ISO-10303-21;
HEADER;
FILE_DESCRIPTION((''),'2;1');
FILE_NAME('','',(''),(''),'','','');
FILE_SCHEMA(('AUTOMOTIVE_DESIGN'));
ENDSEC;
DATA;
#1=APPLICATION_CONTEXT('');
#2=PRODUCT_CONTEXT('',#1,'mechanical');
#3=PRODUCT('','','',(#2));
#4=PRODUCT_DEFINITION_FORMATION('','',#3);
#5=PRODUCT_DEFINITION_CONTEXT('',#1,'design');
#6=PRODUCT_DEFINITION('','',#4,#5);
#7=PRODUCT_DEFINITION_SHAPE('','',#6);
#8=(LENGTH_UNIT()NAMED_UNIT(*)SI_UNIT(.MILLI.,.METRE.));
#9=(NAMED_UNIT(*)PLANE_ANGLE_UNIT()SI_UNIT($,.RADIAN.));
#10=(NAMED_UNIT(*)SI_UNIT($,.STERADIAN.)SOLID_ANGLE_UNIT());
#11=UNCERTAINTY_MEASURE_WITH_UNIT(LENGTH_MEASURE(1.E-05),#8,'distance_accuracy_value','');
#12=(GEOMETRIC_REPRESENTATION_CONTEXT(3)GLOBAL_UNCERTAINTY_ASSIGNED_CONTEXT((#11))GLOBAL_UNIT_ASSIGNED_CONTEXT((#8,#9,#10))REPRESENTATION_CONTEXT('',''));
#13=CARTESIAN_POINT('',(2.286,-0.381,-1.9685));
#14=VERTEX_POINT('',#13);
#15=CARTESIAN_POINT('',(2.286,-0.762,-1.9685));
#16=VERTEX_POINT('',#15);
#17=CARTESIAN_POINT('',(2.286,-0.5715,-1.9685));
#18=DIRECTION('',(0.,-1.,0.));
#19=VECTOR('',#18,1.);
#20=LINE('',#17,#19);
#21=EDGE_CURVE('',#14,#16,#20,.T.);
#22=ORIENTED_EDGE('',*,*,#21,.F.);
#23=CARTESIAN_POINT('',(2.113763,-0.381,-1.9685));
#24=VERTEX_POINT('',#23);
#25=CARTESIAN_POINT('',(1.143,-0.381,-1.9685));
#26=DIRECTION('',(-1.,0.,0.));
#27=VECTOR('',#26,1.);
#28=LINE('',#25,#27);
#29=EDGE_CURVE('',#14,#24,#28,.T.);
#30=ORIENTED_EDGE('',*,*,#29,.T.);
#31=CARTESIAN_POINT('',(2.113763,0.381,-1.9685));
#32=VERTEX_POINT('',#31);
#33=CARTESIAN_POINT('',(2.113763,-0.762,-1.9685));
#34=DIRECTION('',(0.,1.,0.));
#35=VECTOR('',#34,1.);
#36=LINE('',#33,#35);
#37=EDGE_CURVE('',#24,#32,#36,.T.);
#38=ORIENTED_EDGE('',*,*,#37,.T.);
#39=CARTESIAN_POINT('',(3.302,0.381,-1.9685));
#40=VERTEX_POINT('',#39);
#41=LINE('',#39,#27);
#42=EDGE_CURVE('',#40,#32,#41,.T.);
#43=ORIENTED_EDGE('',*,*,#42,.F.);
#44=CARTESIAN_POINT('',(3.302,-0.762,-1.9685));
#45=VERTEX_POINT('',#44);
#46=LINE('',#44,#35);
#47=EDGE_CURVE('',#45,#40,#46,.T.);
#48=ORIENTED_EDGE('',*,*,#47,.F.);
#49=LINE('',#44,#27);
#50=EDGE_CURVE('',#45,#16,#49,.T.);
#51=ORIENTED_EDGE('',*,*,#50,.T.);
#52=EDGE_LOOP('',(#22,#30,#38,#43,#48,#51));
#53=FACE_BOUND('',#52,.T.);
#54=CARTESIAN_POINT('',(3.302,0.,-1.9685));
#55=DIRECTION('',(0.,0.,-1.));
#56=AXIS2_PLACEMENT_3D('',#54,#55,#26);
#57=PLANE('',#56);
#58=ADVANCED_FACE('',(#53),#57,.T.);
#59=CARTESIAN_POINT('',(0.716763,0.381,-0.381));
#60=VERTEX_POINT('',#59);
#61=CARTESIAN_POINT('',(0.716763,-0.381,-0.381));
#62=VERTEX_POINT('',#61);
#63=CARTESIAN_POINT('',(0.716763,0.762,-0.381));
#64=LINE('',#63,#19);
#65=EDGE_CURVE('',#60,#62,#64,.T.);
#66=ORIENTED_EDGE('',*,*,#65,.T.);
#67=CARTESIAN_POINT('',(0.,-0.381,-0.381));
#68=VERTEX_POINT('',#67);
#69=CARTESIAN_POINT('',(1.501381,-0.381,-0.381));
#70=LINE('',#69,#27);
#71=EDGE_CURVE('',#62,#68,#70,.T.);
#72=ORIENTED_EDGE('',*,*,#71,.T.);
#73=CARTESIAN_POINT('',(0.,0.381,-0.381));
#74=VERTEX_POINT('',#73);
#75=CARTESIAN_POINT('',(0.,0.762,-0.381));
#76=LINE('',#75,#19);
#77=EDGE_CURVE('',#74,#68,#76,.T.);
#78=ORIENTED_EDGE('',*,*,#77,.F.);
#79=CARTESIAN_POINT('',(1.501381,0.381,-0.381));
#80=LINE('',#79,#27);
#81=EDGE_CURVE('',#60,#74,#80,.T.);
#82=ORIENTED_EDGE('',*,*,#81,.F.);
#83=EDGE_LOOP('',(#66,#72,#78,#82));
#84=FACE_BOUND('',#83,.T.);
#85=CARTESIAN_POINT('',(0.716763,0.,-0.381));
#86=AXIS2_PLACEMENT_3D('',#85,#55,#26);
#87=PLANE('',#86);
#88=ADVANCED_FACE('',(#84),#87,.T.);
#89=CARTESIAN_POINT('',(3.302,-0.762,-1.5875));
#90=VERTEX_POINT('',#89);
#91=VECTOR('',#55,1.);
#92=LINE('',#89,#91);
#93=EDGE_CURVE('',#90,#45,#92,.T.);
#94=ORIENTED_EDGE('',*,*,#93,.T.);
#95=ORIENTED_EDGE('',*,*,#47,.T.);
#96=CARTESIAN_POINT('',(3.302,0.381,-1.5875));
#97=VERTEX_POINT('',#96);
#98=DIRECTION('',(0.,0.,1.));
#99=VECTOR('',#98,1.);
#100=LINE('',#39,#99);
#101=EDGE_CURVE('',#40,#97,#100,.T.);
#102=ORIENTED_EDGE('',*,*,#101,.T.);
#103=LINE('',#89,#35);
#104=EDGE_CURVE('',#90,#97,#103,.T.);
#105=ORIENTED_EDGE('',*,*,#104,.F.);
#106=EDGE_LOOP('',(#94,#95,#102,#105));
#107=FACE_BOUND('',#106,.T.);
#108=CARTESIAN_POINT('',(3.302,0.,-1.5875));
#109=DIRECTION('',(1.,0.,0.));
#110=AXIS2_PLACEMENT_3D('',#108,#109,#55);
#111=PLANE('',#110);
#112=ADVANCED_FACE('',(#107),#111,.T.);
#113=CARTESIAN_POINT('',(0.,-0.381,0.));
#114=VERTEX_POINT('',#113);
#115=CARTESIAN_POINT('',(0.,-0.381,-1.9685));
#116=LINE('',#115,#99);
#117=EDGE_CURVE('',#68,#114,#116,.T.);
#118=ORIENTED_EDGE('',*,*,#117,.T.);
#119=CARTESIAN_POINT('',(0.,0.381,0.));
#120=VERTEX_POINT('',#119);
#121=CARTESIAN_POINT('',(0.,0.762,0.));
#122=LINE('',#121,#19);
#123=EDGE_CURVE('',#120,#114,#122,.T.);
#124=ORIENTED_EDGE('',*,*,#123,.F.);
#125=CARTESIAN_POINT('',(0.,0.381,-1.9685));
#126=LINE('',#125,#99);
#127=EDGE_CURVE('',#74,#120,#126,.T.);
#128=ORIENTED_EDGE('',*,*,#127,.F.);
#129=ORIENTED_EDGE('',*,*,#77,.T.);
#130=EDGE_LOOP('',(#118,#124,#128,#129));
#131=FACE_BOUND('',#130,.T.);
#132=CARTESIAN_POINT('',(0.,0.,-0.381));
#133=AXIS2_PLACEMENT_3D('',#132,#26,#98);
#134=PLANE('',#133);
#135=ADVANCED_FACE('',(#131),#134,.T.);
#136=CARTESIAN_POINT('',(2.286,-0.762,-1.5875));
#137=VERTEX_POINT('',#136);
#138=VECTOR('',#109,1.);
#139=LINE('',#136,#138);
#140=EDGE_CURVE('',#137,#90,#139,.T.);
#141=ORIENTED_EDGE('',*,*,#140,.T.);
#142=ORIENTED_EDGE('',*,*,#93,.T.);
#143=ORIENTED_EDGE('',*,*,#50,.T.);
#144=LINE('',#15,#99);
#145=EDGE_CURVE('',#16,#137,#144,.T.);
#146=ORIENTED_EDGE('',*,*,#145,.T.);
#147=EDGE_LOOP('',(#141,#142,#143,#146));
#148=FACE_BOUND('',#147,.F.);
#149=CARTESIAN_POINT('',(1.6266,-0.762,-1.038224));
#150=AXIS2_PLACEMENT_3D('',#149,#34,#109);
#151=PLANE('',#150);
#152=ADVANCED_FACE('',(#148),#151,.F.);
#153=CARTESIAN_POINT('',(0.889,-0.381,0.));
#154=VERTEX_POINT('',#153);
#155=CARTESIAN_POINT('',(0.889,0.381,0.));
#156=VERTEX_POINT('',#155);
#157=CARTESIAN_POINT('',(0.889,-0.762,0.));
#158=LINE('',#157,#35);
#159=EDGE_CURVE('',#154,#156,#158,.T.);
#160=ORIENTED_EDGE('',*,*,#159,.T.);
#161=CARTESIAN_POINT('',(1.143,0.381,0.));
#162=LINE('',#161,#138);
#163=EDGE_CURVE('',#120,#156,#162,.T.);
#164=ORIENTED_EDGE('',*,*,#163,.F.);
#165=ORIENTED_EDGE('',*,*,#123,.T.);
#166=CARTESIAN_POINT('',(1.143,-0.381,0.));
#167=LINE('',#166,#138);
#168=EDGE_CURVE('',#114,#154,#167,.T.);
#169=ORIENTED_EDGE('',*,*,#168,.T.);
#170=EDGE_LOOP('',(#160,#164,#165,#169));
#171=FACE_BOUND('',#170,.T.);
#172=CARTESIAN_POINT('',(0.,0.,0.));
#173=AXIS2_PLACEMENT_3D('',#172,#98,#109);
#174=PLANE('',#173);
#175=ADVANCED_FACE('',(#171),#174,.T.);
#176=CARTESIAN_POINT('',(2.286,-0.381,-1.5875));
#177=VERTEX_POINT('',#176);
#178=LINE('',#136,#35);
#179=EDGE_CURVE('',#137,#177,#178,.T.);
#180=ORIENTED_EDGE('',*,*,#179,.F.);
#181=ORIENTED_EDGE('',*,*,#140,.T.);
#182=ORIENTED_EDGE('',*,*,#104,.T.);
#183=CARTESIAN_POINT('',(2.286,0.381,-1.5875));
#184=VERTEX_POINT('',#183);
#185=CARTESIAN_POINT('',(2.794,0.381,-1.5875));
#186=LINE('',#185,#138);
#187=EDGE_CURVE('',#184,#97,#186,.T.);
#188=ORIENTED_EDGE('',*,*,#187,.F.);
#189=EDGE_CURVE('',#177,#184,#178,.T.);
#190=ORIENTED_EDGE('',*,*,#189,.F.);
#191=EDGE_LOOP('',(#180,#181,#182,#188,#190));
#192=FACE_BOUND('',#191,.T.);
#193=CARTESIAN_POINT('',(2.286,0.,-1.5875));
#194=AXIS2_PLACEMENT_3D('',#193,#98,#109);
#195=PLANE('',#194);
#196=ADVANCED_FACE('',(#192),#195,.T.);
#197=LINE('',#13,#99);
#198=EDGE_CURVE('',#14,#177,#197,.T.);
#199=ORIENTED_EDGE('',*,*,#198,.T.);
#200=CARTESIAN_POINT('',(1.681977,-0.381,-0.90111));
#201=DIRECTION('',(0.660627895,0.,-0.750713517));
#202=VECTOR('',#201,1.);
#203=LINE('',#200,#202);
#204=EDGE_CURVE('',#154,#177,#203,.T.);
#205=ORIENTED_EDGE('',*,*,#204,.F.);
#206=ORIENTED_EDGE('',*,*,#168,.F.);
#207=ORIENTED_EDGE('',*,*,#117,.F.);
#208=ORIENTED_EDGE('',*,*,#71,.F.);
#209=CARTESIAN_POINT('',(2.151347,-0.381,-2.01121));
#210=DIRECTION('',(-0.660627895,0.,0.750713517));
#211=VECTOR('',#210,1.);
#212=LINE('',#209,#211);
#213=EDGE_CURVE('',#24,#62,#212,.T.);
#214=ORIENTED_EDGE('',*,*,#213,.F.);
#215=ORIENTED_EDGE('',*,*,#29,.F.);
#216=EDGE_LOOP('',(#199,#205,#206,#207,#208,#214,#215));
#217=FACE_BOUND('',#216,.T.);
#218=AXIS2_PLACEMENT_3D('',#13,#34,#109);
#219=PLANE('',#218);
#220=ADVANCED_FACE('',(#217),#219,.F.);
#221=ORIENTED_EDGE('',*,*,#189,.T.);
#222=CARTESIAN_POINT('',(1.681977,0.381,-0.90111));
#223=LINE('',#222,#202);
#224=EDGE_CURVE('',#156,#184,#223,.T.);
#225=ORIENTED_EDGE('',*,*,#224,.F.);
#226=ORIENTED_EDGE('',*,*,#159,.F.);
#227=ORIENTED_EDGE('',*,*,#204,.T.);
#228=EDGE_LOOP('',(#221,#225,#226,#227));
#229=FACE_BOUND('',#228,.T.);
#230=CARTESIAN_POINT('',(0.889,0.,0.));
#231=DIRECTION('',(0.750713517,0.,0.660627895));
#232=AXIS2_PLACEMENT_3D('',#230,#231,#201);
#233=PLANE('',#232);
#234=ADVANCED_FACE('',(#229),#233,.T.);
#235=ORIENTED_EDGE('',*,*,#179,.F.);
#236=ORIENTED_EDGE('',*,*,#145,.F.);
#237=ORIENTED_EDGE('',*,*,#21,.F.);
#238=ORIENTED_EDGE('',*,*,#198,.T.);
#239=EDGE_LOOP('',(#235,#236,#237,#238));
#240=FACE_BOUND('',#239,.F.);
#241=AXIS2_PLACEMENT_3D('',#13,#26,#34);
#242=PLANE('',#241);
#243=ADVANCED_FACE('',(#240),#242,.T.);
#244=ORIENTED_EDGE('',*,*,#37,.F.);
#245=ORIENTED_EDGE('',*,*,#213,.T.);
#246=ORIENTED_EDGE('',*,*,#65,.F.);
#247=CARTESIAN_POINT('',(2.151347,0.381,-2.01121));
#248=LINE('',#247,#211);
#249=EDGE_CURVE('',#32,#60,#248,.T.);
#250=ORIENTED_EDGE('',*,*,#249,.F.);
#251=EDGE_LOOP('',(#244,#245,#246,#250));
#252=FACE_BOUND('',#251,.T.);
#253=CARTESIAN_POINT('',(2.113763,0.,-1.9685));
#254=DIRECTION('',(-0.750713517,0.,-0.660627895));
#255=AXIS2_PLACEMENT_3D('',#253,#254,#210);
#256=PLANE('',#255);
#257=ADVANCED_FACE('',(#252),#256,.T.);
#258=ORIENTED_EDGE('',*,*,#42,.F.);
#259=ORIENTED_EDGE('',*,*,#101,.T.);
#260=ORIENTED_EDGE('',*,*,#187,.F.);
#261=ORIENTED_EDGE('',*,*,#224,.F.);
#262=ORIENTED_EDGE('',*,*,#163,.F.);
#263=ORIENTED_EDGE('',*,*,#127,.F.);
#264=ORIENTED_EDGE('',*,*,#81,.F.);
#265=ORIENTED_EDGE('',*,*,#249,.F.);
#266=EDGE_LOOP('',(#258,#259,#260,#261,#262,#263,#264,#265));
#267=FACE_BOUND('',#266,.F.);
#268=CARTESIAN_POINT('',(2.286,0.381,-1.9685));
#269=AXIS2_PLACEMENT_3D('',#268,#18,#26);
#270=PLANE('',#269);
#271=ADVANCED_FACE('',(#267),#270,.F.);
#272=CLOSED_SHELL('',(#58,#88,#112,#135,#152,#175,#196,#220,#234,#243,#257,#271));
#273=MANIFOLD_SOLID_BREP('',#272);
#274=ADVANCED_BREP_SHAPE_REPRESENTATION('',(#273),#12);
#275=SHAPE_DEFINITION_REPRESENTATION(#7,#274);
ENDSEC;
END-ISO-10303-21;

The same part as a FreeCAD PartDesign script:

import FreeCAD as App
import Part
import Sketcher
Q = App.Units.Quantity


def add_polygon(sketch, points):
    """Adds a closed chain of lines whose ends are joined by coincident constraints."""
    first, n = sketch.GeometryCount, len(points)
    for a, b in zip(points, points[1:] + points[:1]):
        sketch.addGeometry(Part.LineSegment(App.Vector(*a, 0), App.Vector(*b, 0)), False)
    for i in range(n):
        sketch.addConstraint(Sketcher.Constraint("Coincident", first + i, 2, first + (i + 1) % n, 1))

doc = App.newDocument("Part")
params = doc.addObject("Spreadsheet::Sheet", "Params")
for row, (alias, value) in enumerate([
    ("sketch1_width", "0.04 in"),
    ("sketch1_width2", "0.035 in"),
    ("sketch1_height", "0.015 in"),
    ("pad1_length", "0.06 in"),
    ("sketch2_width", "0.09 in"),
    ("sketch2_height", "0.015 in"),
    ("sketch3_width", "0.04 in"),
    ("sketch3_height", "0.015 in"),
], start=1):
    params.set(f"A{row}", alias)
    params.set(f"B{row}", "=" + value)
    params.setAlias(f"B{row}", alias)

body = doc.addObject("PartDesign::Body", "Body")

sketch1 = body.newObject("Sketcher::SketchObject", "Sketch")
sketch1.AttachmentSupport = (doc.getObject("XZ_Plane"), [""])
sketch1.MapMode = "FlatFace"
add_polygon(sketch1, [(0, 0), (0.889, 0), (2.286, -1.5875), (3.302, -1.5875), (3.302, -1.9685), (2.113763, -1.9685), (0.716763, -0.381), (0, -0.381)])
sketch1.addConstraint(Sketcher.Constraint("Horizontal", 0))
sketch1.addConstraint(Sketcher.Constraint("Horizontal", 2))
sketch1.addConstraint(Sketcher.Constraint("Vertical", 3))
sketch1.addConstraint(Sketcher.Constraint("Horizontal", 4))
sketch1.addConstraint(Sketcher.Constraint("Horizontal", 6))
sketch1.addConstraint(Sketcher.Constraint("Vertical", 7))
sketch1.addConstraint(Sketcher.Constraint("Coincident", 7, 2, -1, 1))
sketch1.addConstraint(Sketcher.Constraint("Parallel", 1, 5))
sketch1.addConstraint(Sketcher.Constraint("Equal", 3, 7))
sketch1.addConstraint(Sketcher.Constraint("DistanceX", 2, 1, 2, 2, Q("0.04 in")))
sketch1.addConstraint(Sketcher.Constraint("DistanceX", 0, 1, 0, 2, Q("0.035 in")))
sketch1.addConstraint(Sketcher.Constraint("DistanceY", 3, 2, 3, 1, Q("0.015 in")))
sketch1.addConstraint(Sketcher.Constraint("DistanceX", -1, 1, 1, 2, Q("0.09 in")))
sketch1.addConstraint(Sketcher.Constraint("DistanceY", 1, 2, -1, 1, Q("0.0625 in")))
sketch1.addConstraint(Sketcher.Constraint("DistanceX", 4, 2, 4, 1, Q("1.188237 mm")))
sketch1.setExpression("Constraints[17]", "Params.sketch1_width")
sketch1.setExpression("Constraints[18]", "Params.sketch1_width2")
sketch1.setExpression("Constraints[19]", "Params.sketch1_height")
pad1 = body.newObject("PartDesign::Pad", "Pad")
pad1.Profile = sketch1
pad1.setExpression("Length", "Params.pad1_length")
pad1.Midplane = True

sketch2 = body.newObject("Sketcher::SketchObject", "Sketch001")
sketch2.AttachmentSupport = (doc.getObject("XY_Plane"), [""])
sketch2.MapMode = "FlatFace"
sketch2.AttachmentOffset = App.Placement(App.Vector(0, 0, -0.0775 * 25.4), App.Rotation())
add_polygon(sketch2, [(2.286, 0.762), (2.286, 0.381), (0, 0.381), (0, 0.762)])
sketch2.addConstraint(Sketcher.Constraint("Vertical", 0))
sketch2.addConstraint(Sketcher.Constraint("Horizontal", 1))
sketch2.addConstraint(Sketcher.Constraint("Vertical", 2))
sketch2.addConstraint(Sketcher.Constraint("Horizontal", 3))
sketch2.addConstraint(Sketcher.Constraint("PointOnObject", 1, 2, -2))
sketch2.addConstraint(Sketcher.Constraint("DistanceX", 1, 2, 1, 1, Q("0.09 in")))
sketch2.addConstraint(Sketcher.Constraint("DistanceY", 0, 2, 0, 1, Q("0.015 in")))
sketch2.addConstraint(Sketcher.Constraint("DistanceY", -1, 1, 2, 2, Q("0.03 in")))
sketch2.setExpression("Constraints[9]", "Params.sketch2_width")
sketch2.setExpression("Constraints[10]", "Params.sketch2_height")
pocket1 = body.newObject("PartDesign::Pocket", "Pocket")
pocket1.Profile = sketch2
pocket1.Type = "ThroughAll"
pocket1.Reversed = True
doc.recompute()

mirrored = body.newObject("PartDesign::Mirrored", "Mirrored")
mirrored.Originals = [pocket1]
mirrored.MirrorPlane = (doc.getObject("XZ_Plane"), [""])
body.Tip = mirrored

sketch3 = body.newObject("Sketcher::SketchObject", "Sketch002")
sketch3.AttachmentSupport = (doc.getObject("XY_Plane"), [""])
sketch3.MapMode = "FlatFace"
sketch3.AttachmentOffset = App.Placement(App.Vector(0, 0, -0.0775 * 25.4), App.Rotation())
add_polygon(sketch3, [(3.302, 0.762), (3.302, 0.381), (2.286, 0.381), (2.286, 0.762)])
sketch3.addConstraint(Sketcher.Constraint("Vertical", 0))
sketch3.addConstraint(Sketcher.Constraint("Horizontal", 1))
sketch3.addConstraint(Sketcher.Constraint("Vertical", 2))
sketch3.addConstraint(Sketcher.Constraint("Horizontal", 3))
sketch3.addConstraint(Sketcher.Constraint("DistanceX", 1, 2, 1, 1, Q("0.04 in")))
sketch3.addConstraint(Sketcher.Constraint("DistanceY", 0, 2, 0, 1, Q("0.015 in")))
sketch3.addConstraint(Sketcher.Constraint("DistanceX", -1, 1, 0, 2, Q("0.13 in")))
sketch3.addConstraint(Sketcher.Constraint("DistanceY", -1, 1, 2, 2, Q("0.03 in")))
sketch3.setExpression("Constraints[8]", "Params.sketch3_width")
sketch3.setExpression("Constraints[9]", "Params.sketch3_height")
pocket2 = body.newObject("PartDesign::Pocket", "Pocket001")
pocket2.Profile = sketch3
pocket2.Type = "ThroughAll"
pocket2.Reversed = True

doc.recompute()
